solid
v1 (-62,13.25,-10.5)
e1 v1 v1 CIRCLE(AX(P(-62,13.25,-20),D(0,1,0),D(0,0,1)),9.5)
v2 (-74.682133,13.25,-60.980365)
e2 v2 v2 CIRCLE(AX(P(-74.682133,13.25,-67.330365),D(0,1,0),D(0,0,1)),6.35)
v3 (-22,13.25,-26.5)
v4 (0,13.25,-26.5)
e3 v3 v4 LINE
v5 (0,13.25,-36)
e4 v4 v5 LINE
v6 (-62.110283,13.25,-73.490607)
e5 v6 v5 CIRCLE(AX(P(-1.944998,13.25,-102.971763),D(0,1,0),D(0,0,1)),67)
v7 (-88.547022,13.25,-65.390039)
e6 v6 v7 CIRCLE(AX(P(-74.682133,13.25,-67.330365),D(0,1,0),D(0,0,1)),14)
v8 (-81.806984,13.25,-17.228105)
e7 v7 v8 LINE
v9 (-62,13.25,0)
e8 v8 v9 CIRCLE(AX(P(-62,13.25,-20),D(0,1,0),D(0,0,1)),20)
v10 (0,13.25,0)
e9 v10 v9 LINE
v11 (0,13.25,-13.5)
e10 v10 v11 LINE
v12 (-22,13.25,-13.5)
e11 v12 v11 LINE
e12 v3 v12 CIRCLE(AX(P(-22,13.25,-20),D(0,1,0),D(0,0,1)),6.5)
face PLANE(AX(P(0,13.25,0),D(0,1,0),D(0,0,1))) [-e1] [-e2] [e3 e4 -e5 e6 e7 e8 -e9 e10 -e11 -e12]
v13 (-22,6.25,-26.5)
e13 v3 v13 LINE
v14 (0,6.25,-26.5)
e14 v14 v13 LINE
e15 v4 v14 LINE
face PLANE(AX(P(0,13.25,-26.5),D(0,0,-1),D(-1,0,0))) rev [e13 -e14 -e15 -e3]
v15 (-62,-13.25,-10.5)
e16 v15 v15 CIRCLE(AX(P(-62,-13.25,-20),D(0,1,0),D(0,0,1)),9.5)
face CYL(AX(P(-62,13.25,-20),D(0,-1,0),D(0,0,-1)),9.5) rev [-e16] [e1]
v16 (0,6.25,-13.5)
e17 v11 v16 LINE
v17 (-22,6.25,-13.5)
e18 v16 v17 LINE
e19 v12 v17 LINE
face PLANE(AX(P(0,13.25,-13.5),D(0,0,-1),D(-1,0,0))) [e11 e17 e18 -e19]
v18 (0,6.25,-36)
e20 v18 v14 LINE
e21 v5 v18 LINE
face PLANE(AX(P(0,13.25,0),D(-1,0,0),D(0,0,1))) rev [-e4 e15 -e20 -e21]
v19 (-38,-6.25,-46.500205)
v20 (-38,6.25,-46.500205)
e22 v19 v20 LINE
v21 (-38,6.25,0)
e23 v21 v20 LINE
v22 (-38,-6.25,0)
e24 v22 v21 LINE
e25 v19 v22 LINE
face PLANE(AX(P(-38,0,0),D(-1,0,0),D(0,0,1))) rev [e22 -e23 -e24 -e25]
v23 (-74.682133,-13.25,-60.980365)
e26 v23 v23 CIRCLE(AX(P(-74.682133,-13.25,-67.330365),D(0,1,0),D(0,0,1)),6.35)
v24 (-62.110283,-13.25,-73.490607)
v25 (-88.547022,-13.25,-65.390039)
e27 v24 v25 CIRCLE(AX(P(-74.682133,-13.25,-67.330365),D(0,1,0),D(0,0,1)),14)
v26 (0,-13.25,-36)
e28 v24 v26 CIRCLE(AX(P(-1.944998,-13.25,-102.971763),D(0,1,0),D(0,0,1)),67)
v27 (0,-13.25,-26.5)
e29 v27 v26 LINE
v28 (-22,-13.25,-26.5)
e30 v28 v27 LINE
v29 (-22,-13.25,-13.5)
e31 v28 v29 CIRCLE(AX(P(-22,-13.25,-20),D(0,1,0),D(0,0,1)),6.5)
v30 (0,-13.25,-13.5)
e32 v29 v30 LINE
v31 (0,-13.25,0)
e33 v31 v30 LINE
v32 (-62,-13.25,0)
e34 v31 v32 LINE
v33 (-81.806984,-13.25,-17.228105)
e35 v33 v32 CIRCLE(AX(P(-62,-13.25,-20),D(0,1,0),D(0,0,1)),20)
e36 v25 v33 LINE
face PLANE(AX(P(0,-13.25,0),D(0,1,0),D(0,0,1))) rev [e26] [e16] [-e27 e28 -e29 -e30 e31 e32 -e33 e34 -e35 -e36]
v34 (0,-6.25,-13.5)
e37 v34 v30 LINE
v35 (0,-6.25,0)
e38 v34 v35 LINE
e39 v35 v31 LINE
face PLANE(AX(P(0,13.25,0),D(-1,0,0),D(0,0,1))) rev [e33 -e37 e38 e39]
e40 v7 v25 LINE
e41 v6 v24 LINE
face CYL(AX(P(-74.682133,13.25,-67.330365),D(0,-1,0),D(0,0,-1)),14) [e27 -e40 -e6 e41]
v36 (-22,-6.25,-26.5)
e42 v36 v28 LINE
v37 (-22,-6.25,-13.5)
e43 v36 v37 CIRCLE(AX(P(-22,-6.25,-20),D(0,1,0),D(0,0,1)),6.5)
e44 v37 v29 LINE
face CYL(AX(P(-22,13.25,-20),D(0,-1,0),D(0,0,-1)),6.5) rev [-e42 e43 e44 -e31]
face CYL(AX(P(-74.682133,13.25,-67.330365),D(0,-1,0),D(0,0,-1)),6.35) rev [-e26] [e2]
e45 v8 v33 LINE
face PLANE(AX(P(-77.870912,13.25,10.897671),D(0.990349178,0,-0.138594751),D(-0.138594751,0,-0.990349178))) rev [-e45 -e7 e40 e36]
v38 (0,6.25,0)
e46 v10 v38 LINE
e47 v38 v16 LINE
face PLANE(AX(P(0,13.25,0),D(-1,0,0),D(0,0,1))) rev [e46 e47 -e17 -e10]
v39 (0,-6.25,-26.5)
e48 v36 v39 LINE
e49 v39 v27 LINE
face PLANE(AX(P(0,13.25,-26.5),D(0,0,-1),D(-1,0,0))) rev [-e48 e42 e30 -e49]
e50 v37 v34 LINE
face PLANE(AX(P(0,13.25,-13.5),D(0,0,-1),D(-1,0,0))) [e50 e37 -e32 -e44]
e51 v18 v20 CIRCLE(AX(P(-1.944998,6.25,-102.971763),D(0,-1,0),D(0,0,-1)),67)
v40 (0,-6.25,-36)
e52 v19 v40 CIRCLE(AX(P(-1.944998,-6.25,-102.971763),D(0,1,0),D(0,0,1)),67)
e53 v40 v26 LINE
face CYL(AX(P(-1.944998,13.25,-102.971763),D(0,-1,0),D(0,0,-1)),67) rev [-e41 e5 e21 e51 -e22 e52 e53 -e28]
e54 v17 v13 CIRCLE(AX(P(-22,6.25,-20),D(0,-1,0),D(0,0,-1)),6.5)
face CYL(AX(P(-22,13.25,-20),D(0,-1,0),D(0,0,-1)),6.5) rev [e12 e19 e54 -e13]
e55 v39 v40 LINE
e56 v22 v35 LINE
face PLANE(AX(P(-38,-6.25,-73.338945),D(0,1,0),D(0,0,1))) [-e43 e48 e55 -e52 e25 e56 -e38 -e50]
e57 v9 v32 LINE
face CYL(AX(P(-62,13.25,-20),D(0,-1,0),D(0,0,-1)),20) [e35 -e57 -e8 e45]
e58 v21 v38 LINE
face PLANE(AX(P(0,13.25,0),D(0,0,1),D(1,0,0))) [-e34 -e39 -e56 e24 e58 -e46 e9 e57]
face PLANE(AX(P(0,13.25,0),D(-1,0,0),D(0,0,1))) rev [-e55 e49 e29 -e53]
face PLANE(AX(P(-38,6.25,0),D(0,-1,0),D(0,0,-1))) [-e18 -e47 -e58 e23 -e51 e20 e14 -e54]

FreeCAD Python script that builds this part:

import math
import FreeCAD as App
import Part
import Sketcher
from FreeCAD import Vector


def add_polygon(sketch, points):
    """Adds a closed chain of lines whose ends are joined by coincident constraints."""
    first, n = sketch.GeometryCount, len(points)
    for a, b in zip(points, points[1:] + points[:1]):
        sketch.addGeometry(Part.LineSegment(App.Vector(*a, 0), App.Vector(*b, 0)), False)
    for i in range(n):
        sketch.addConstraint(Sketcher.Constraint("Coincident", first + i, 2, first + (i + 1) % n, 1))

doc = App.newDocument("Part")
params = doc.addObject("Spreadsheet::Sheet", "Params")
for row, (alias, value) in enumerate([
    ("sketch1_diameter", "19 mm"),
    ("sketch1_radius", "67 mm"),
    ("sketch1_radius2", "14 mm"),
    ("sketch1_radius3", "20 mm"),
    ("sketch1_diameter2", "12.7 mm"),
    ("pad1_length", "26.5 mm"),
    ("sketch2_width", "12.5 mm"),
    ("pocket1_length", "38 mm"),
], start=1):
    params.set(f"A{row}", alias)
    params.set(f"B{row}", "=" + value)
    params.setAlias(f"B{row}", alias)

body = doc.addObject("PartDesign::Body", "Body")

# Sketch on XZ plane
sketch1 = body.newObject("Sketcher::SketchObject", "Sketch")
sketch1.AttachmentSupport = (doc.getObject("XZ_Plane"), [""])
sketch1.MapMode = "FlatFace"
sketch1.addGeometry(Part.LineSegment(Vector(-62, 0, 0), Vector(0, 0, 0)), False)
sketch1.addGeometry(Part.LineSegment(Vector(0, 0, 0), Vector(0, -14, 0)), False)
sketch1.addGeometry(Part.LineSegment(Vector(0, -14, 0), Vector(-22, -14, 0)), False)
sketch1.addGeometry(Part.ArcOfCircle(Part.Circle(Vector(-22, -20, 0), Vector(0, 0, 1), 6), math.radians(90), math.radians(270)), False)
sketch1.addGeometry(Part.LineSegment(Vector(-22, -26, 0), Vector(0, -26, 0)), False)
sketch1.addGeometry(Part.LineSegment(Vector(0, -26, 0), Vector(0, -36, 0)), False)
sketch1.addGeometry(Part.ArcOfCircle(Part.Circle(Vector(-2, -103, 0), Vector(0, 0, 1), 67), math.radians(88), math.radians(154)), False)
sketch1.addGeometry(Part.ArcOfCircle(Part.Circle(Vector(-75, -67, 0), Vector(0, 0, 1), 14), math.radians(172), math.radians(334)), False)
sketch1.addGeometry(Part.LineSegment(Vector(-89, -65, 0), Vector(-82, -17, 0)), False)
sketch1.addGeometry(Part.ArcOfCircle(Part.Circle(Vector(-62, -20, 0), Vector(0, 0, 1), 20), math.radians(90), math.radians(172)), False)
sketch1.addGeometry(Part.Circle(Vector(-62, -20, 0), Vector(0, 0, 1), 10), False)
sketch1.addGeometry(Part.Circle(Vector(-75, -67, 0), Vector(0, 0, 1), 6), False)
sketch1.addConstraint(Sketcher.Constraint("Coincident", 0, 2, 1, 1))
sketch1.addConstraint(Sketcher.Constraint("Coincident", 1, 2, 2, 1))
sketch1.addConstraint(Sketcher.Constraint("Tangent", 2, 2, 3, 1))
sketch1.addConstraint(Sketcher.Constraint("Tangent", 3, 2, 4, 1))
sketch1.addConstraint(Sketcher.Constraint("Coincident", 4, 2, 5, 1))
sketch1.addConstraint(Sketcher.Constraint("Coincident", 5, 2, 6, 1))
sketch1.addConstraint(Sketcher.Constraint("Tangent", 6, 2, 7, 2))
sketch1.addConstraint(Sketcher.Constraint("Tangent", 7, 1, 8, 1))
sketch1.addConstraint(Sketcher.Constraint("Tangent", 8, 2, 9, 2))
sketch1.addConstraint(Sketcher.Constraint("Tangent", 9, 1, 0, 1))
sketch1.addConstraint(Sketcher.Constraint("Horizontal", 0))
sketch1.addConstraint(Sketcher.Constraint("Vertical", 1))
sketch1.addConstraint(Sketcher.Constraint("Horizontal", 2))
sketch1.addConstraint(Sketcher.Constraint("Horizontal", 4))
sketch1.addConstraint(Sketcher.Constraint("Vertical", 5))
sketch1.addConstraint(Sketcher.Constraint("Coincident", 0, 2, -1, 1))
sketch1.addConstraint(Sketcher.Constraint("Coincident", 10, 3, 9, 3))
sketch1.addConstraint(Sketcher.Constraint("Coincident", 11, 3, 7, 3))
sketch1.addConstraint(Sketcher.Constraint("PointOnObject", 4, 2, -2))
sketch1.addConstraint(Sketcher.Constraint("Horizontal", 3, 3, 9, 3))
sketch1.addConstraint(Sketcher.Constraint("Diameter", 10, 19.0))
sketch1.addConstraint(Sketcher.Constraint("Radius", 6, 67.0))
sketch1.addConstraint(Sketcher.Constraint("Radius", 7, 14.0))
sketch1.addConstraint(Sketcher.Constraint("Radius", 9, 20.0))
sketch1.addConstraint(Sketcher.Constraint("Diameter", 11, 12.7))
sketch1.addConstraint(Sketcher.Constraint("Radius", 3, 6.5))
sketch1.addConstraint(Sketcher.Constraint("DistanceX", 0, 1, 0, 2, 62.0))
sketch1.addConstraint(Sketcher.Constraint("DistanceX", 2, 2, 2, 1, 22.0))
sketch1.addConstraint(Sketcher.Constraint("DistanceY", 5, 2, 5, 1, 9.5))
sketch1.addConstraint(Sketcher.Constraint("DistanceX", 6, 3, -1, 1, 1.944998))
sketch1.addConstraint(Sketcher.Constraint("DistanceX", 7, 1, -1, 1, 88.547022))
sketch1.setExpression("Constraints[20]", "Params.sketch1_diameter")
sketch1.setExpression("Constraints[21]", "Params.sketch1_radius")
sketch1.setExpression("Constraints[22]", "Params.sketch1_radius2")
sketch1.setExpression("Constraints[23]", "Params.sketch1_radius3")
sketch1.setExpression("Constraints[24]", "Params.sketch1_diameter2")
pad1 = body.newObject("PartDesign::Pad", "Pad")
pad1.Profile = sketch1
pad1.setExpression("Length", "Params.pad1_length")
pad1.Midplane = True

# Sketch on YZ plane
sketch2 = body.newObject("Sketcher::SketchObject", "Sketch001")
sketch2.AttachmentSupport = (doc.getObject("YZ_Plane"), [""])
sketch2.MapMode = "FlatFace"
add_polygon(sketch2, [(6, 0), (-6, 0), (-6, -73), (6, -73)])  # lines 0-3
sketch2.addConstraint(Sketcher.Constraint("Horizontal", 0))
sketch2.addConstraint(Sketcher.Constraint("Vertical", 1))
sketch2.addConstraint(Sketcher.Constraint("Horizontal", 2))
sketch2.addConstraint(Sketcher.Constraint("Vertical", 3))
sketch2.addConstraint(Sketcher.Constraint("Symmetric", 0, 2, 3, 2, -1, 1))
sketch2.addConstraint(Sketcher.Constraint("DistanceX", 0, 2, 0, 1, 12.5))
sketch2.addConstraint(Sketcher.Constraint("DistanceY", 1, 2, 1, 1, 73.338945))
sketch2.setExpression("Constraints[9]", "Params.sketch2_width")
pocket1 = body.newObject("PartDesign::Pocket", "Pocket")
pocket1.Profile = sketch2
pocket1.setExpression("Length", "Params.pocket1_length")

doc.recompute()
